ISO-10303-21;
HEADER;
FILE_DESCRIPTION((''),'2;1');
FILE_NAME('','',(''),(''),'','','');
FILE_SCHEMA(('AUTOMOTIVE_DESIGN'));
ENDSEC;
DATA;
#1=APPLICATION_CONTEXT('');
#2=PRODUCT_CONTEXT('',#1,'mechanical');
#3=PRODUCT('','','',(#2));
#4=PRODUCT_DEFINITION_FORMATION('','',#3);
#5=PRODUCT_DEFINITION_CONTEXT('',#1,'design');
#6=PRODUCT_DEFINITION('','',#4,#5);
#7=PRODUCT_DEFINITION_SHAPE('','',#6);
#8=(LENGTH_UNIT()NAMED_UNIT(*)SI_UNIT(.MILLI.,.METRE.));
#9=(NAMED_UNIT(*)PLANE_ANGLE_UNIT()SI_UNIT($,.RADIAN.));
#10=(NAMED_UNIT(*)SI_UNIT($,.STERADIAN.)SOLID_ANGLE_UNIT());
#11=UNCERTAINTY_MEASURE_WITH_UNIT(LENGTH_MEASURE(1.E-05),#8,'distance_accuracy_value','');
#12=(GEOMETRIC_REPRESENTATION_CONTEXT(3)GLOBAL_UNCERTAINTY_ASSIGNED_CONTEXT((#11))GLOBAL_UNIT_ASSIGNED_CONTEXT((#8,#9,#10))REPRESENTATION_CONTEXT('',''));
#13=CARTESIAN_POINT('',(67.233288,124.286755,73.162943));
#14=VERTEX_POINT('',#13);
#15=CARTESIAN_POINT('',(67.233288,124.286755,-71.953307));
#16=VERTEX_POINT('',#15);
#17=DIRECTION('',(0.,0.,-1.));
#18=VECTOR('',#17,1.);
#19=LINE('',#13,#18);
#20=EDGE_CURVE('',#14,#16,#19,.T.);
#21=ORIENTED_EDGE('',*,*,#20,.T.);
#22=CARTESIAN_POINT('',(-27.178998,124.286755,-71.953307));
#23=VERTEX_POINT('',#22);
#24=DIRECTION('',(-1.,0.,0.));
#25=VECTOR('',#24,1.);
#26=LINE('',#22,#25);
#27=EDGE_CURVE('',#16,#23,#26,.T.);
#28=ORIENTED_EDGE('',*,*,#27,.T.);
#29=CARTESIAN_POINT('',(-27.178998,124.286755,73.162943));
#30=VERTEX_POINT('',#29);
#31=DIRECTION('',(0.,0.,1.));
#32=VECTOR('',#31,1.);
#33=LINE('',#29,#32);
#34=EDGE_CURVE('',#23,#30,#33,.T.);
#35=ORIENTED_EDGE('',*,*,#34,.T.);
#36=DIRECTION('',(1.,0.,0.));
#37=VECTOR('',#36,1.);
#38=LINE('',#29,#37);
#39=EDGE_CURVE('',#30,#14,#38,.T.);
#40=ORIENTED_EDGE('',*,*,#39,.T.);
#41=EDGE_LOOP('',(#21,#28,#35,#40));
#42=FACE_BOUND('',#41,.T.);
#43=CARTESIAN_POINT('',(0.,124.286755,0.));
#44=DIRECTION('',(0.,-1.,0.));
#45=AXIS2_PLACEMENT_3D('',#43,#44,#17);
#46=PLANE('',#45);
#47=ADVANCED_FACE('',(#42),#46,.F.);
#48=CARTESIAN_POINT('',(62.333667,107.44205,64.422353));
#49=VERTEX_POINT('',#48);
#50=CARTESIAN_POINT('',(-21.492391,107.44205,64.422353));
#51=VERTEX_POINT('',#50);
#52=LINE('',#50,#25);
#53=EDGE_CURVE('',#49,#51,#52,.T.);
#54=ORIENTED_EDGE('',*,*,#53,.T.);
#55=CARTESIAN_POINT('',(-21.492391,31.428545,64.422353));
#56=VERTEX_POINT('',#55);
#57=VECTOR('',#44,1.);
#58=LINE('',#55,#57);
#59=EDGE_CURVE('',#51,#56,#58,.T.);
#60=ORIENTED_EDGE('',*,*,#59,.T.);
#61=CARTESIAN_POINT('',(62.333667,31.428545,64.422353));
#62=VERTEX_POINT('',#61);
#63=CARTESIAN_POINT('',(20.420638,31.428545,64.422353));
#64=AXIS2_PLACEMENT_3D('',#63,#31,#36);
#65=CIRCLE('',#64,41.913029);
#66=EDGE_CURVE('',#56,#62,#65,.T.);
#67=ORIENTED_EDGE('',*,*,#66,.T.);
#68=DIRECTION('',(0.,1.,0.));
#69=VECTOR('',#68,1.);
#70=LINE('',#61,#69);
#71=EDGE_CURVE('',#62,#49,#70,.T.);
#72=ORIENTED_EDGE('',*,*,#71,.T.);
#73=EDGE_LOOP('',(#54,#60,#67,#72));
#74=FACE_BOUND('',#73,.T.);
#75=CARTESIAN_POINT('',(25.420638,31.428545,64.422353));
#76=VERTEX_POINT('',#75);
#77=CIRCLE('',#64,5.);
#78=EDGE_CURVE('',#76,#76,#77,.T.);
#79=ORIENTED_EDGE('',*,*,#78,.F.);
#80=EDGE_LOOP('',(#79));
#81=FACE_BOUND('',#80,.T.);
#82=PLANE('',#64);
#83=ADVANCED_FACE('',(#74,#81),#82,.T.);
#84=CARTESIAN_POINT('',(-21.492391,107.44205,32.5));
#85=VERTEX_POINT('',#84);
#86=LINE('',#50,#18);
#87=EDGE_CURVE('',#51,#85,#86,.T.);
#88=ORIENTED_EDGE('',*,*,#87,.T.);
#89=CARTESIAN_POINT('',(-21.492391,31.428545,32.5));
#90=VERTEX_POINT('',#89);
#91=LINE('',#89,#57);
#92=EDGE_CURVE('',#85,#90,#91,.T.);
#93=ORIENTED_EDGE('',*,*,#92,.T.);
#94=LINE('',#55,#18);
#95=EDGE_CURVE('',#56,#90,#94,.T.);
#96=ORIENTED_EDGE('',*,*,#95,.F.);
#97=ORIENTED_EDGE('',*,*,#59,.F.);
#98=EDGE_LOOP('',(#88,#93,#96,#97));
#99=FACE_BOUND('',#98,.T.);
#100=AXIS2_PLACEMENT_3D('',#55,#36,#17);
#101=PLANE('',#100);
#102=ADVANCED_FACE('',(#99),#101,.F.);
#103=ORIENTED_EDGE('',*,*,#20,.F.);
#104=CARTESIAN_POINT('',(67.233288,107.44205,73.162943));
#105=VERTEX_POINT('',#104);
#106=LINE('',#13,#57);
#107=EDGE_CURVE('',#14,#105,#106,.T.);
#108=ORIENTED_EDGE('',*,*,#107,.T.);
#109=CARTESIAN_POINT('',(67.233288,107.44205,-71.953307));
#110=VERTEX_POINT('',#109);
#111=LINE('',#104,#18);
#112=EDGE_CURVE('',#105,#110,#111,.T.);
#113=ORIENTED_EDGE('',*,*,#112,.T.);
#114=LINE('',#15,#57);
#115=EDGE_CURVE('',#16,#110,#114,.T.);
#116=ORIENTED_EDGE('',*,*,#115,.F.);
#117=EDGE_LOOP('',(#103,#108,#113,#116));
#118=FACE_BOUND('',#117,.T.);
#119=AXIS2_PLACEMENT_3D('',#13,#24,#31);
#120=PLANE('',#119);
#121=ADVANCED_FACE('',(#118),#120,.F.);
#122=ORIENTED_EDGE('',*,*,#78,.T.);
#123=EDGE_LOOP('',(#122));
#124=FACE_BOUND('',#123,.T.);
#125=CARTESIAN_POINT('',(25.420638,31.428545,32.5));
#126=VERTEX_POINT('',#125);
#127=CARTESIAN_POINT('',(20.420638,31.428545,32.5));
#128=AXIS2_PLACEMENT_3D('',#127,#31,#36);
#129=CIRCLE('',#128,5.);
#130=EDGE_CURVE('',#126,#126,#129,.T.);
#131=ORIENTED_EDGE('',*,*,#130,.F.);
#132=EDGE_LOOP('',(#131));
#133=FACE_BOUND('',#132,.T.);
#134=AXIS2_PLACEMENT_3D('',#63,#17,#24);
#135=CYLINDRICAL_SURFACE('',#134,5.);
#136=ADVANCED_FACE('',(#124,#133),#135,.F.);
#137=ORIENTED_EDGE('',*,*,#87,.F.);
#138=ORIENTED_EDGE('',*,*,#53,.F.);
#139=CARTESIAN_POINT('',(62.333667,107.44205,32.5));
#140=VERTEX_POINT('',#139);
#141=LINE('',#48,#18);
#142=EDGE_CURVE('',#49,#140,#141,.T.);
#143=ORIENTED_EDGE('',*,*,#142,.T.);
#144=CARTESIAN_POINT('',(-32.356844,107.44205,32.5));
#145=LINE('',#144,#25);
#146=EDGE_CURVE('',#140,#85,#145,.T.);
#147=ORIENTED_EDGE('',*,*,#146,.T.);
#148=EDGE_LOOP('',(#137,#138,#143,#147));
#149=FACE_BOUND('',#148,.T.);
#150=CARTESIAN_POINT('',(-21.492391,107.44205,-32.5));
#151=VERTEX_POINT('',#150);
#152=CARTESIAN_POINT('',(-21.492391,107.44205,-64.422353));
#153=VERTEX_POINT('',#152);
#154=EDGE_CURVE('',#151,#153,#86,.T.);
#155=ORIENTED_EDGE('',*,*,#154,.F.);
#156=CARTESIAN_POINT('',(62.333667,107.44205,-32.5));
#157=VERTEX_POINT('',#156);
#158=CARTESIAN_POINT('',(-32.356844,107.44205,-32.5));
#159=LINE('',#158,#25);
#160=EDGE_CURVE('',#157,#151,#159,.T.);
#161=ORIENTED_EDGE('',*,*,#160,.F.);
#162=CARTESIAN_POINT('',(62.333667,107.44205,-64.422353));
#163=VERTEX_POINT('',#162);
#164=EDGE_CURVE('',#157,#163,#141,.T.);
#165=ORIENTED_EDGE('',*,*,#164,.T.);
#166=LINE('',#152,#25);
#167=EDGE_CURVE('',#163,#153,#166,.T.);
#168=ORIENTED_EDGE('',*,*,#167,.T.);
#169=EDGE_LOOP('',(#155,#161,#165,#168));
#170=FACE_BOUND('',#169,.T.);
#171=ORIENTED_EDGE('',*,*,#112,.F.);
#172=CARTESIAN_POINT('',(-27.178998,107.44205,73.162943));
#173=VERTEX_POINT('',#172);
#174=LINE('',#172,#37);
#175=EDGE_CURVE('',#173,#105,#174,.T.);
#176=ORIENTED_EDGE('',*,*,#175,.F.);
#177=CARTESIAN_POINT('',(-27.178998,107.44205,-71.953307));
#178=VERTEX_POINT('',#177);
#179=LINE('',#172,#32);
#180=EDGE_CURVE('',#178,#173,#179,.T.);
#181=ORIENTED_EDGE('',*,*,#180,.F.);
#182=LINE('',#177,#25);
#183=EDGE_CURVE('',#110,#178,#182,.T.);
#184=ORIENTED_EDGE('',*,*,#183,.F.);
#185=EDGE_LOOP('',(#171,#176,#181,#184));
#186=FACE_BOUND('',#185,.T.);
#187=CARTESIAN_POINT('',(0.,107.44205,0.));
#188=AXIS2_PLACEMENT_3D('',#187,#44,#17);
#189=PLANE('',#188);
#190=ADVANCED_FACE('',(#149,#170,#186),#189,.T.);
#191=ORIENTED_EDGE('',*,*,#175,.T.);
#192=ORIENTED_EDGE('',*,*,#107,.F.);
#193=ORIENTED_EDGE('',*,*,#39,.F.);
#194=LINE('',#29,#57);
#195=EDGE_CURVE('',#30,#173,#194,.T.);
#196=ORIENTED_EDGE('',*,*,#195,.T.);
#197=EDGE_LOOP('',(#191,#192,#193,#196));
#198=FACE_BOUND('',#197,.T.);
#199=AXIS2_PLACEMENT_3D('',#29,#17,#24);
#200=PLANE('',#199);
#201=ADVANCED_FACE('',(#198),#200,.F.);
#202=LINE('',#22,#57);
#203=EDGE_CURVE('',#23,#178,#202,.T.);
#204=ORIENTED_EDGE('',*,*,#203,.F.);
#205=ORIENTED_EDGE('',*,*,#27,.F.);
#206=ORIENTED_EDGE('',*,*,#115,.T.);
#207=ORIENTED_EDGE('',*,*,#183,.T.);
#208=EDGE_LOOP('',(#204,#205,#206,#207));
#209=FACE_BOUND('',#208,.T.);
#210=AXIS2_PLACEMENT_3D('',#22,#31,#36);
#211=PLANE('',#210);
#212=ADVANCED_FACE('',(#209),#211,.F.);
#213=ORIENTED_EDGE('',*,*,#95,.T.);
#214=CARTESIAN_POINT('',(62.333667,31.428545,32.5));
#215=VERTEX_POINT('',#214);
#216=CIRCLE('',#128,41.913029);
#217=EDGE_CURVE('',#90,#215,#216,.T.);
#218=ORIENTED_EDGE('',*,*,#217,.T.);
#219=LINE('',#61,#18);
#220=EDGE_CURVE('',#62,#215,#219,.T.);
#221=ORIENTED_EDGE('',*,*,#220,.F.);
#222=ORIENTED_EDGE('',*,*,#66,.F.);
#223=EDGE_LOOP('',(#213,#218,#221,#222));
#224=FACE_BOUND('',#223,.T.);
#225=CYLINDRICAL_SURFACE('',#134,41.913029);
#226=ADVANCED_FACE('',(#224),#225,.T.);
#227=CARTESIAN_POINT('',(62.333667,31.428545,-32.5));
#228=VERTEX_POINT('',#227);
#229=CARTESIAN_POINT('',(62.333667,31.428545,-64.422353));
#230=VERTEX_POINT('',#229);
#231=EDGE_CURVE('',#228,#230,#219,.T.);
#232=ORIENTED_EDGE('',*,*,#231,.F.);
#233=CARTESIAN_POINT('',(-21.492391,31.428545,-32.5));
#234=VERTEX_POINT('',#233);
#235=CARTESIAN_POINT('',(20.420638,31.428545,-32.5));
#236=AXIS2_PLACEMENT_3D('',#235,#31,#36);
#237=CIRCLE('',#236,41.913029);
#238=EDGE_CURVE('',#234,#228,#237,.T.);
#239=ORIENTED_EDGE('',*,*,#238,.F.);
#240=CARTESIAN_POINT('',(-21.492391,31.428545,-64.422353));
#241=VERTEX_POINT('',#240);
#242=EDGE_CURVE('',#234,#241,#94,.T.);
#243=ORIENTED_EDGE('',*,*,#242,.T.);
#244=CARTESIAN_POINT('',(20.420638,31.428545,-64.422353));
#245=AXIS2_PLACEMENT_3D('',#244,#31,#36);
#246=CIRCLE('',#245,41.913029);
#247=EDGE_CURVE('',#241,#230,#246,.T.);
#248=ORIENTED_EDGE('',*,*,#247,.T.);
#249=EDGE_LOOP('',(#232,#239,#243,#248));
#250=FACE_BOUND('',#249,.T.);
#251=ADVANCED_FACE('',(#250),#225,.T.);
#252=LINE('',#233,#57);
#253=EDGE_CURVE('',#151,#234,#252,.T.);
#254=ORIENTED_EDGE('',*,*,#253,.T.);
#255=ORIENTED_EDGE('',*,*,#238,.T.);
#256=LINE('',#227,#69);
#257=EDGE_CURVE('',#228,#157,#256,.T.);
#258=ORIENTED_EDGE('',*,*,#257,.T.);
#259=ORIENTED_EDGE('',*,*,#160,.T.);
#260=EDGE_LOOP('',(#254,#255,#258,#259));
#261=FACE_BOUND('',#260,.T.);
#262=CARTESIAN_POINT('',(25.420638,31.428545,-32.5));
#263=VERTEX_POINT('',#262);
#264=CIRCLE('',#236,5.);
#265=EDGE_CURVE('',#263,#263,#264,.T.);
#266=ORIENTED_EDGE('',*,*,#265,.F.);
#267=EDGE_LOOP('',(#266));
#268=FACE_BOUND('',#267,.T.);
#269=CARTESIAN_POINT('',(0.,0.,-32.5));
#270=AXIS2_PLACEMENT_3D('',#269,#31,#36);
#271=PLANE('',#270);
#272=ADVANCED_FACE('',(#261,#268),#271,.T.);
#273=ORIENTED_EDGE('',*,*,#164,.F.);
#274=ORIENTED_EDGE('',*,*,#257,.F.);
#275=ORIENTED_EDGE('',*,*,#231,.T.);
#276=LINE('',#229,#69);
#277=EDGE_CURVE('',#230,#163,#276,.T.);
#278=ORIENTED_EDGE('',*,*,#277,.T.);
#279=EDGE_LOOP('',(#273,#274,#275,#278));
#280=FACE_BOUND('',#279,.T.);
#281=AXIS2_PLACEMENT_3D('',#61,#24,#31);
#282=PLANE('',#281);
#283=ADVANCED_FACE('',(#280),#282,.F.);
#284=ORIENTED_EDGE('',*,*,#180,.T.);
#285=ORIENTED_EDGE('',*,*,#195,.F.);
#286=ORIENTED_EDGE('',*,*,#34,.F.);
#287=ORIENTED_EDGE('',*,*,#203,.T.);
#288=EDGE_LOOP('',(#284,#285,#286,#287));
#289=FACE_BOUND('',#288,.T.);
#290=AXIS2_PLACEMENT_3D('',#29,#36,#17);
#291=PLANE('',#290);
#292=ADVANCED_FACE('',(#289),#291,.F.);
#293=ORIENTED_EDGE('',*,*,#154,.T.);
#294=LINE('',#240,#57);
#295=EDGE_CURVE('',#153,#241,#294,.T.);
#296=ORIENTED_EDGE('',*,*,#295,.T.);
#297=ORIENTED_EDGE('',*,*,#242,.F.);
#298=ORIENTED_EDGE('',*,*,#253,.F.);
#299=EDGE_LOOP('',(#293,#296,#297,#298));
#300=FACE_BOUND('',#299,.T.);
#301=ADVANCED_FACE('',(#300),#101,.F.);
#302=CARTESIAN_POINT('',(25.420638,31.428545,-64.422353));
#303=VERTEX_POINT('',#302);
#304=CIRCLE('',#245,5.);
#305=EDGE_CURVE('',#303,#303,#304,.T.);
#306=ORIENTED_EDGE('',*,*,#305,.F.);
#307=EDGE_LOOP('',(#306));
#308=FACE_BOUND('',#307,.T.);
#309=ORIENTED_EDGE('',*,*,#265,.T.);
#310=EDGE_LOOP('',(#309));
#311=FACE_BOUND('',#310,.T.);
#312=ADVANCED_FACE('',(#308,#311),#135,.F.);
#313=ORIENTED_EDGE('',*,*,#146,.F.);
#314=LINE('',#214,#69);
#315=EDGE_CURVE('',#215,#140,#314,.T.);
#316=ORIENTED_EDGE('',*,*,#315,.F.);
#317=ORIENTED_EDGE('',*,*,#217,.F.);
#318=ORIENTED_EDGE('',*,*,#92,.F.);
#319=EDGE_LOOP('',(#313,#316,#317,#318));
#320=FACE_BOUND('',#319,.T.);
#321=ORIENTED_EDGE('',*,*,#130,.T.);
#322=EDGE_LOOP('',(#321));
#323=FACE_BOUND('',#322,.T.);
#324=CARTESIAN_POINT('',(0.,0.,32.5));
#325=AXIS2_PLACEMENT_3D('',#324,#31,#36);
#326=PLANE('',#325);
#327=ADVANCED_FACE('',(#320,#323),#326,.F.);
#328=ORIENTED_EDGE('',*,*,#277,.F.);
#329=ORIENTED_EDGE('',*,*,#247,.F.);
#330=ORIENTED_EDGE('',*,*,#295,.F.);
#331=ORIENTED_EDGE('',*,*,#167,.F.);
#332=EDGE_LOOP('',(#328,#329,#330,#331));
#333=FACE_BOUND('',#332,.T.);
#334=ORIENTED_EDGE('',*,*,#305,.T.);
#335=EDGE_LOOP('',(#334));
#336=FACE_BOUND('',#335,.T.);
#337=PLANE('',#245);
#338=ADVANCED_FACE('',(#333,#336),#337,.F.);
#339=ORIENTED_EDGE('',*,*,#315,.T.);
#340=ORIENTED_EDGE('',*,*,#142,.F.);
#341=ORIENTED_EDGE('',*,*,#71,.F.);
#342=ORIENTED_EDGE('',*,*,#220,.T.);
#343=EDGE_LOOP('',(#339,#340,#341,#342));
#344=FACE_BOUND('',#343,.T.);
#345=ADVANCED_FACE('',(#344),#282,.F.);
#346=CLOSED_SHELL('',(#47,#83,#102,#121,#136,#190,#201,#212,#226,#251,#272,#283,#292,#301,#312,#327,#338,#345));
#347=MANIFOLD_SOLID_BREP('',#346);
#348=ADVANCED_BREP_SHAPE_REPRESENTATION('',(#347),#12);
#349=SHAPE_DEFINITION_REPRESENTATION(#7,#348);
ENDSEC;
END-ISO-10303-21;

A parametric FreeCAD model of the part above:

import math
import FreeCAD as App
import Part
import Sketcher

V = App.Vector

doc = App.newDocument("Part")
params = doc.addObject("Spreadsheet::Sheet", "Params")
for row, (alias, value) in enumerate([
    ("sketch1_diameter", "10 mm"),
    ("pad1_length", "128.844705 mm"),
    ("pad2_length", "16.844705 mm"),
    ("pocket1_length", "65 mm"),
], start=1):
    params.set(f"A{row}", alias)
    params.set(f"B{row}", "=" + value)
    params.setAlias(f"B{row}", alias)

body = doc.addObject("PartDesign::Body", "Body")

# Sketch on XY plane
sketch1 = body.newObject("Sketcher::SketchObject", "Sketch")
sketch1.AttachmentSupport = (doc.getObject("XY_Plane"), [""])
sketch1.MapMode = "FlatFace"
sketch1.addGeometry(Part.LineSegment(V(-21, 107, 0), V(-21, 31, 0)), False)
sketch1.addGeometry(Part.ArcOfCircle(Part.Circle(V(20, 31, 0), V(0, 0, 1), 42), math.radians(180), math.radians(360)), False)
sketch1.addGeometry(Part.LineSegment(V(62, 31, 0), V(62, 107, 0)), False)
sketch1.addGeometry(Part.LineSegment(V(62, 107, 0), V(-21, 107, 0)), False)
sketch1.addGeometry(Part.Circle(V(20, 31, 0), V(0, 0, 1), 5), False)
sketch1.addConstraint(Sketcher.Constraint("Tangent", 0, 2, 1, 1))
sketch1.addConstraint(Sketcher.Constraint("Tangent", 1, 2, 2, 1))
sketch1.addConstraint(Sketcher.Constraint("Coincident", 2, 2, 3, 1))
sketch1.addConstraint(Sketcher.Constraint("Coincident", 3, 2, 0, 1))
sketch1.addConstraint(Sketcher.Constraint("Vertical", 0))
sketch1.addConstraint(Sketcher.Constraint("Vertical", 2))
sketch1.addConstraint(Sketcher.Constraint("Horizontal", 3))
sketch1.addConstraint(Sketcher.Constraint("Coincident", 4, 3, 1, 3))
sketch1.addConstraint(Sketcher.Constraint("Diameter", 4, 10.0))
sketch1.addConstraint(Sketcher.Constraint("Radius", 1, 41.913029))
sketch1.addConstraint(Sketcher.Constraint("DistanceY", 0, 2, 0, 1, 76.013505))
sketch1.addConstraint(Sketcher.Constraint("DistanceX", -1, 1, 1, 3, 20.420638))
sketch1.addConstraint(Sketcher.Constraint("DistanceY", -1, 1, 2, 2, 107.44205))
sketch1.setExpression("Constraints[8]", "Params.sketch1_diameter")
pad1 = body.newObject("PartDesign::Pad", "Pad")
pad1.Profile = sketch1
pad1.setExpression("Length", "Params.pad1_length")
pad1.Midplane = True

# Sketch on XZ plane
sketch2 = body.newObject("Sketcher::SketchObject", "Sketch001")
sketch2.AttachmentSupport = (doc.getObject("XZ_Plane"), [""])
sketch2.MapMode = "FlatFace"
sketch2.AttachmentOffset = App.Placement(V(0, 0, -107.44205), App.Rotation())
sketch2.addGeometry(Part.LineSegment(V(-27, -72, 0), V(-27, 73, 0)), False)
sketch2.addGeometry(Part.LineSegment(V(-27, 73, 0), V(67, 73, 0)), False)
sketch2.addGeometry(Part.LineSegment(V(67, 73, 0), V(67, -72, 0)), False)
sketch2.addGeometry(Part.LineSegment(V(67, -72, 0), V(-27, -72, 0)), False)
sketch2.addConstraint(Sketcher.Constraint("Coincident", 0, 2, 1, 1))
sketch2.addConstraint(Sketcher.Constraint("Coincident", 1, 2, 2, 1))
sketch2.addConstraint(Sketcher.Constraint("Coincident", 2, 2, 3, 1))
sketch2.addConstraint(Sketcher.Constraint("Coincident", 3, 2, 0, 1))
sketch2.addConstraint(Sketcher.Constraint("Vertical", 0))
sketch2.addConstraint(Sketcher.Constraint("Horizontal", 1))
sketch2.addConstraint(Sketcher.Constraint("Vertical", 2))
sketch2.addConstraint(Sketcher.Constraint("Horizontal", 3))
sketch2.addConstraint(Sketcher.Constraint("DistanceX", 0, 2, -1, 1, 27.178998))
sketch2.addConstraint(Sketcher.Constraint("DistanceY", 0, 1, 0, 2, 145.11625))
sketch2.addConstraint(Sketcher.Constraint("DistanceX", 1, 1, 1, 2, 94.412286))
sketch2.addConstraint(Sketcher.Constraint("DistanceY", -1, 1, 0, 2, 73.162943))
pad2 = body.newObject("PartDesign::Pad", "Pad001")
pad2.Profile = sketch2
pad2.setExpression("Length", "Params.pad2_length")
pad2.Reversed = True

# Sketch on XY plane
sketch3 = body.newObject("Sketcher::SketchObject", "Sketch002")
sketch3.AttachmentSupport = (doc.getObject("XY_Plane"), [""])
sketch3.MapMode = "FlatFace"
sketch3.addGeometry(Part.LineSegment(V(-32, 107, 0), V(-32, -20, 0)), False)
sketch3.addGeometry(Part.LineSegment(V(-32, -20, 0), V(73, -20, 0)), False)
sketch3.addGeometry(Part.LineSegment(V(73, -20, 0), V(73, 107, 0)), False)
sketch3.addGeometry(Part.LineSegment(V(73, 107, 0), V(-32, 107, 0)), False)
sketch3.addConstraint(Sketcher.Constraint("Coincident", 0, 2, 1, 1))
sketch3.addConstraint(Sketcher.Constraint("Coincident", 1, 2, 2, 1))
sketch3.addConstraint(Sketcher.Constraint("Coincident", 2, 2, 3, 1))
sketch3.addConstraint(Sketcher.Constraint("Coincident", 3, 2, 0, 1))
sketch3.addConstraint(Sketcher.Constraint("Vertical", 0))
sketch3.addConstraint(Sketcher.Constraint("Horizontal", 1))
sketch3.addConstraint(Sketcher.Constraint("Vertical", 2))
sketch3.addConstraint(Sketcher.Constraint("Horizontal", 3))
sketch3.addConstraint(Sketcher.Constraint("DistanceX", -1, 1, 1, 2, 72.9568))
sketch3.addConstraint(Sketcher.Constraint("DistanceX", 1, 1, 1, 2, 105.313644))
sketch3.addConstraint(Sketcher.Constraint("DistanceY", 0, 2, 0, 1, 127.479897))
sketch3.addConstraint(Sketcher.Constraint("DistanceY", -1, 1, 2, 2, 107.44205))
pocket1 = body.newObject("PartDesign::Pocket", "Pocket")
pocket1.Profile = sketch3
pocket1.setExpression("Length", "Params.pocket1_length")
pocket1.Midplane = True

doc.recompute()
